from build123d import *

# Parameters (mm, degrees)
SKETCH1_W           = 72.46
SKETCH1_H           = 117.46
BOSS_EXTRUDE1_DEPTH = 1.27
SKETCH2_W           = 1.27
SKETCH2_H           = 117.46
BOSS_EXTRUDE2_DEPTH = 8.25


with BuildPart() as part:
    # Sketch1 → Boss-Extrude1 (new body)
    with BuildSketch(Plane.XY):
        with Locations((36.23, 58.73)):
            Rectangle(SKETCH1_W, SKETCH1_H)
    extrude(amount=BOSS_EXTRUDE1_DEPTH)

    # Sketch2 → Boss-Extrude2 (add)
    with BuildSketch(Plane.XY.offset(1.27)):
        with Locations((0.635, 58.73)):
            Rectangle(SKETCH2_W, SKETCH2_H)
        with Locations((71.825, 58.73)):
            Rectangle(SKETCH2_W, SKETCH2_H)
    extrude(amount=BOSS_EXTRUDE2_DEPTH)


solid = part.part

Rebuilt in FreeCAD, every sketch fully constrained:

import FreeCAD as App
import Part
import Sketcher
from FreeCAD import Vector
Q = App.Units.Quantity


def add_polygon(sketch, points):
    """Adds a closed chain of lines whose ends are joined by coincident constraints."""
    first, n = sketch.GeometryCount, len(points)
    for a, b in zip(points, points[1:] + points[:1]):
        sketch.addGeometry(Part.LineSegment(App.Vector(*a, 0), App.Vector(*b, 0)), False)
    for i in range(n):
        sketch.addConstraint(Sketcher.Constraint("Coincident", first + i, 2, first + (i + 1) % n, 1))

doc = App.newDocument("Part")
params = doc.addObject("Spreadsheet::Sheet", "Params")
for row, (alias, value) in enumerate([
    ("pad1_length", "0.05 in"),
    ("sketch2_width", "0.05 in"),
    ("pad2_length", "8.25 mm"),
], start=1):
    params.set(f"A{row}", alias)
    params.set(f"B{row}", "=" + value)
    params.setAlias(f"B{row}", alias)

body = doc.addObject("PartDesign::Body", "Body")

sketch1 = body.newObject("Sketcher::SketchObject", "Sketch")
sketch1.AttachmentSupport = (doc.getObject("XY_Plane"), [""])
sketch1.MapMode = "FlatFace"
add_polygon(sketch1, [(0, 117), (0, 0), (72, 0), (72, 117)])
sketch1.addConstraint([
    Sketcher.Constraint("Vertical", 0),
    Sketcher.Constraint("Horizontal", 1),
    Sketcher.Constraint("Vertical", 2),
    Sketcher.Constraint("Horizontal", 3),
    Sketcher.Constraint("Coincident", 0, 2, -1, 1),
    Sketcher.Constraint("DistanceX", 1, 1, 1, 2, 72.46),
    Sketcher.Constraint("DistanceY", 0, 2, 0, 1, 117.46),
])
pad1 = body.newObject("PartDesign::Pad", "Pad")
pad1.Profile = sketch1
pad1.setExpression("Length", "Params.pad1_length")

sketch2 = body.newObject("Sketcher::SketchObject", "Sketch001")
sketch2.AttachmentSupport = (doc.getObject("XY_Plane"), [""])
sketch2.MapMode = "FlatFace"
sketch2.AttachmentOffset = App.Placement(Vector(0, 0, 0.05 * 25.4), App.Rotation())
add_polygon(sketch2, [(0, 117.5), (0, 0), (1.3, 0), (1.3, 117.5)])
add_polygon(sketch2, [(71.2, 117.5), (71.2, 0), (72.5, 0), (72.5, 117.5)])
sketch2.addConstraint([
    Sketcher.Constraint("Vertical", 0),
    Sketcher.Constraint("Horizontal", 1),
    Sketcher.Constraint("Vertical", 2),
    Sketcher.Constraint("Horizontal", 3),
    Sketcher.Constraint("Vertical", 4),
    Sketcher.Constraint("Horizontal", 5),
    Sketcher.Constraint("Vertical", 6),
    Sketcher.Constraint("Horizontal", 7),
    Sketcher.Constraint("Coincident", 0, 2, -1, 1),
    Sketcher.Constraint("PointOnObject", 4, 2, -1),
    Sketcher.Constraint("Horizontal", 3, 2, 6, 2),
    Sketcher.Constraint("Equal", 3, 5),
    Sketcher.Constraint("DistanceX", 1, 1, 1, 2, Q("0.05 in")),
    Sketcher.Constraint("DistanceY", 0, 2, 0, 1, 117.46),
    Sketcher.Constraint("DistanceX", -1, 1, 4, 2, 71.19),
])
sketch2.setExpression("Constraints[20]", "Params.sketch2_width")
pad2 = body.newObject("PartDesign::Pad", "Pad001")
pad2.Profile = sketch2
pad2.setExpression("Length", "Params.pad2_length")

doc.recompute()
